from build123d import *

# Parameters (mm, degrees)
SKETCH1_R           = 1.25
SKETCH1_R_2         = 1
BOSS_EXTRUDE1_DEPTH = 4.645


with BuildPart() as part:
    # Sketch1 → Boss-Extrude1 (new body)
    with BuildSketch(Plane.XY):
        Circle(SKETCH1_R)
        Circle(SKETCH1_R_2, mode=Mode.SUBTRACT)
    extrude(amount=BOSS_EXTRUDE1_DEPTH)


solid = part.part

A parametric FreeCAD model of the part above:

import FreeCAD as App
import Part
import Sketcher

doc = App.newDocument("Part")
params = doc.addObject("Spreadsheet::Sheet", "Params")
for row, (alias, value) in enumerate([
    ("sketch1_diameter", "2 mm"),
    ("sketch1_diameter2", "2.5 mm"),
    ("pad1_length", "4.645 mm"),
], start=1):
    params.set(f"A{row}", alias)
    params.set(f"B{row}", "=" + value)
    params.setAlias(f"B{row}", alias)

body = doc.addObject("PartDesign::Body", "Body")

# Sketch on XY plane
sketch1 = body.newObject("Sketcher::SketchObject", "Sketch")
sketch1.AttachmentSupport = (doc.getObject("XY_Plane"), [""])
sketch1.MapMode = "FlatFace"
sketch1.addGeometry([
    Part.Circle(App.Vector(0, 0, 0), App.Vector(0, 0, 1), 1.2),
    Part.Circle(App.Vector(0, 0, 0), App.Vector(0, 0, 1), 1),
], False)
sketch1.addConstraint([
    Sketcher.Constraint("Coincident", 0, 3, -1, 1),
    Sketcher.Constraint("Coincident", 1, 3, -1, 1),
    Sketcher.Constraint("Diameter", 1, 2.0),
    Sketcher.Constraint("Diameter", 0, 2.5),
])
sketch1.setExpression("Constraints[2]", "Params.sketch1_diameter")
sketch1.setExpression("Constraints[3]", "Params.sketch1_diameter2")
pad1 = body.newObject("PartDesign::Pad", "Pad")
pad1.Profile = sketch1
pad1.setExpression("Length", "Params.pad1_length")

doc.recompute()
